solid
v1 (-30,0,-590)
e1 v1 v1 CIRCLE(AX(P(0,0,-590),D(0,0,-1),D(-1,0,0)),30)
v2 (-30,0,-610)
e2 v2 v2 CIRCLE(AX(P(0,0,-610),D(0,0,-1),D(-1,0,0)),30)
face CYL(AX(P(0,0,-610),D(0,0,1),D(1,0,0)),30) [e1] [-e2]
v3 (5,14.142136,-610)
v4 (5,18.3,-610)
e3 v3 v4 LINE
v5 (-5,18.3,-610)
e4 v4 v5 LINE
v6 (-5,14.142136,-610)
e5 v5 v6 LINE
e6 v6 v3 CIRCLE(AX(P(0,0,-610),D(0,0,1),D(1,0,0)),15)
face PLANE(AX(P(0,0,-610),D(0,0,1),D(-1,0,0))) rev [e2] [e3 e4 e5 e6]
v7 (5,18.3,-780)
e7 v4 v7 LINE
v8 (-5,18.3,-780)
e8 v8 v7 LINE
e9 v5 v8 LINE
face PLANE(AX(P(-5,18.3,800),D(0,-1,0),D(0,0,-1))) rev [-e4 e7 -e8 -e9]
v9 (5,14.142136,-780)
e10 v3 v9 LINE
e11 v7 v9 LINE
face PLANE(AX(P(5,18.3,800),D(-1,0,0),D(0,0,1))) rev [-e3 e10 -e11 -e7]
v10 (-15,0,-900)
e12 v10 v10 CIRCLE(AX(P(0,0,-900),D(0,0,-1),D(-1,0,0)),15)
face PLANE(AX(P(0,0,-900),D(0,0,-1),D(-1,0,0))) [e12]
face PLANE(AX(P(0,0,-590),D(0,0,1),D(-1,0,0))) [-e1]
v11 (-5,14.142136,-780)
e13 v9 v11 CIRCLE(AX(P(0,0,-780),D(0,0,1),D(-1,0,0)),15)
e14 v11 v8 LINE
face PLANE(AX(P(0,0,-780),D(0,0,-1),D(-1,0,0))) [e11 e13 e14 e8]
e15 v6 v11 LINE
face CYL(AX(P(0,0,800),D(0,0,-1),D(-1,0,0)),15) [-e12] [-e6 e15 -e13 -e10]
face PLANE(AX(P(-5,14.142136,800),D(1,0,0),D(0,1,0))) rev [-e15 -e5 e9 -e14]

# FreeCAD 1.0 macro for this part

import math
import FreeCAD as App
import Part
import Sketcher
from FreeCAD import Vector
Q = App.Units.Quantity

doc = App.newDocument("Part")
body = doc.addObject("PartDesign::Body", "Body")

sketch1 = body.newObject("Sketcher::SketchObject", "Sketch")
sketch1.AttachmentSupport = (doc.getObject("XY_Plane"), [""])
sketch1.MapMode = "FlatFace"
sketch1.addGeometry([
    Part.LineSegment(Vector(-5, 18.3, 0), Vector(-5, 14.1, 0)),
    Part.ArcOfCircle(Part.Circle(Vector(0, 0, 0), Vector(0, 0, 1), 15), math.radians(109), math.radians(431)),
    Part.LineSegment(Vector(5, 14.1, 0), Vector(5, 18.3, 0)),
    Part.LineSegment(Vector(5, 18.3, 0), Vector(-5, 18.3, 0)),
], False)
sketch1.addConstraint([
    Sketcher.Constraint("Coincident", 0, 2, 1, 1),
    Sketcher.Constraint("Coincident", 1, 2, 2, 1),
    Sketcher.Constraint("Coincident", 2, 2, 3, 1),
    Sketcher.Constraint("Coincident", 3, 2, 0, 1),
    Sketcher.Constraint("Vertical", 0),
    Sketcher.Constraint("Vertical", 2),
    Sketcher.Constraint("Horizontal", 3),
    Sketcher.Constraint("Coincident", 1, 3, -1, 1),
    Sketcher.Constraint("Horizontal", 0, 2, 1, 2),
    Sketcher.Constraint("Radius", 1, Q("15 mm")),
    Sketcher.Constraint("DistanceX", 3, 2, 3, 1, Q("10 mm")),
    Sketcher.Constraint("DistanceY", -1, 1, 2, 2, Q("18.3 mm")),
])
pad1 = body.newObject("PartDesign::Pad", "Pad")
pad1.Profile = sketch1
pad1.Length = 1600
pad1.Midplane = True

sketch2 = body.newObject("Sketcher::SketchObject", "Sketch001")
sketch2.AttachmentSupport = (doc.getObject("XY_Plane"), [""])
sketch2.MapMode = "FlatFace"
sketch2.AttachmentOffset = App.Placement(Vector(0, 0, 590), App.Rotation())
sketch2.addGeometry(Part.Circle(Vector(0, 0, 0), Vector(0, 0, 1), 30), False)
sketch2.addConstraint([
    Sketcher.Constraint("Coincident", 0, 3, -1, 1),
    Sketcher.Constraint("Diameter", 0, Q("60 mm")),
])
pad2 = body.newObject("PartDesign::Pad", "Pad001")
pad2.Profile = sketch2
pad2.Length = 20
doc.recompute()

mirrored = body.newObject("PartDesign::Mirrored", "Mirrored")
mirrored.Originals = [pad2]
mirrored.MirrorPlane = (doc.getObject("XY_Plane"), [""])
body.Tip = mirrored

sketch3 = body.newObject("Sketcher::SketchObject", "Sketch002")
sketch3.AttachmentSupport = (doc.getObject("XY_Plane"), [""])
sketch3.MapMode = "FlatFace"
sketch3.AttachmentOffset = App.Placement(Vector(0, 0, -590), App.Rotation())
sketch3.addGeometry(Part.Circle(Vector(0, 0, 0), Vector(0, 0, 1), 30), False)
sketch3.addConstraint([
    Sketcher.Constraint("Coincident", 0, 3, -1, 1),
    Sketcher.Constraint("Diameter", 0, Q("60 mm")),
])
pocket1 = body.newObject("PartDesign::Pocket", "Pocket")
pocket1.Profile = sketch3
pocket1.Type = "ThroughAll"
pocket1.Reversed = True

sketch4 = body.newObject("Sketcher::SketchObject", "Sketch003")
sketch4.AttachmentSupport = (doc.getObject("XY_Plane"), [""])
sketch4.MapMode = "FlatFace"
sketch4.AttachmentOffset = App.Placement(Vector(0, 0, -800), App.Rotation())
sketch4.addGeometry(Part.Circle(Vector(0, 0, 0), Vector(0, 0, 1), 15), False)
sketch4.addConstraint([
    Sketcher.Constraint("Coincident", 0, 3, -1, 1),
    Sketcher.Constraint("Diameter", 0, Q("30 mm")),
])
pad3 = body.newObject("PartDesign::Pad", "Pad002")
pad3.Profile = sketch4
pad3.Length = 100
pad3.Reversed = True

sketch5 = body.newObject("Sketcher::SketchObject", "Sketch004")
sketch5.AttachmentSupport = (doc.getObject("XY_Plane"), [""])
sketch5.MapMode = "FlatFace"
sketch5.AttachmentOffset = App.Placement(Vector(0, 0, -780), App.Rotation())
sketch5.addGeometry([
    Part.LineSegment(Vector(-5, 14.1, 0), Vector(-5, 18.3, 0)),
    Part.LineSegment(Vector(-5, 18.3, 0), Vector(5, 18.3, 0)),
    Part.LineSegment(Vector(5, 18.3, 0), Vector(5, 14.1, 0)),
    Part.ArcOfCircle(Part.Circle(Vector(0, 0, 0), Vector(0, 0, 1), 15), math.radians(71), math.radians(109)),
], False)
sketch5.addConstraint([
    Sketcher.Constraint("Coincident", 0, 2, 1, 1),
    Sketcher.Constraint("Coincident", 1, 2, 2, 1),
    Sketcher.Constraint("Coincident", 2, 2, 3, 1),
    Sketcher.Constraint("Coincident", 3, 2, 0, 1),
    Sketcher.Constraint("Vertical", 0),
    Sketcher.Constraint("Horizontal", 1),
    Sketcher.Constraint("Vertical", 2),
    Sketcher.Constraint("Coincident", 3, 3, -1, 1),
    Sketcher.Constraint("Horizontal", 2, 2, 3, 2),
    Sketcher.Constraint("Radius", 3, Q("15 mm")),
    Sketcher.Constraint("DistanceX", 1, 1, 1, 2, Q("10 mm")),
    Sketcher.Constraint("DistanceY", -1, 1, 0, 2, Q("18.3 mm")),
])
pocket2 = body.newObject("PartDesign::Pocket", "Pocket001")
pocket2.Profile = sketch5
pocket2.Length = 20

doc.recompute()
